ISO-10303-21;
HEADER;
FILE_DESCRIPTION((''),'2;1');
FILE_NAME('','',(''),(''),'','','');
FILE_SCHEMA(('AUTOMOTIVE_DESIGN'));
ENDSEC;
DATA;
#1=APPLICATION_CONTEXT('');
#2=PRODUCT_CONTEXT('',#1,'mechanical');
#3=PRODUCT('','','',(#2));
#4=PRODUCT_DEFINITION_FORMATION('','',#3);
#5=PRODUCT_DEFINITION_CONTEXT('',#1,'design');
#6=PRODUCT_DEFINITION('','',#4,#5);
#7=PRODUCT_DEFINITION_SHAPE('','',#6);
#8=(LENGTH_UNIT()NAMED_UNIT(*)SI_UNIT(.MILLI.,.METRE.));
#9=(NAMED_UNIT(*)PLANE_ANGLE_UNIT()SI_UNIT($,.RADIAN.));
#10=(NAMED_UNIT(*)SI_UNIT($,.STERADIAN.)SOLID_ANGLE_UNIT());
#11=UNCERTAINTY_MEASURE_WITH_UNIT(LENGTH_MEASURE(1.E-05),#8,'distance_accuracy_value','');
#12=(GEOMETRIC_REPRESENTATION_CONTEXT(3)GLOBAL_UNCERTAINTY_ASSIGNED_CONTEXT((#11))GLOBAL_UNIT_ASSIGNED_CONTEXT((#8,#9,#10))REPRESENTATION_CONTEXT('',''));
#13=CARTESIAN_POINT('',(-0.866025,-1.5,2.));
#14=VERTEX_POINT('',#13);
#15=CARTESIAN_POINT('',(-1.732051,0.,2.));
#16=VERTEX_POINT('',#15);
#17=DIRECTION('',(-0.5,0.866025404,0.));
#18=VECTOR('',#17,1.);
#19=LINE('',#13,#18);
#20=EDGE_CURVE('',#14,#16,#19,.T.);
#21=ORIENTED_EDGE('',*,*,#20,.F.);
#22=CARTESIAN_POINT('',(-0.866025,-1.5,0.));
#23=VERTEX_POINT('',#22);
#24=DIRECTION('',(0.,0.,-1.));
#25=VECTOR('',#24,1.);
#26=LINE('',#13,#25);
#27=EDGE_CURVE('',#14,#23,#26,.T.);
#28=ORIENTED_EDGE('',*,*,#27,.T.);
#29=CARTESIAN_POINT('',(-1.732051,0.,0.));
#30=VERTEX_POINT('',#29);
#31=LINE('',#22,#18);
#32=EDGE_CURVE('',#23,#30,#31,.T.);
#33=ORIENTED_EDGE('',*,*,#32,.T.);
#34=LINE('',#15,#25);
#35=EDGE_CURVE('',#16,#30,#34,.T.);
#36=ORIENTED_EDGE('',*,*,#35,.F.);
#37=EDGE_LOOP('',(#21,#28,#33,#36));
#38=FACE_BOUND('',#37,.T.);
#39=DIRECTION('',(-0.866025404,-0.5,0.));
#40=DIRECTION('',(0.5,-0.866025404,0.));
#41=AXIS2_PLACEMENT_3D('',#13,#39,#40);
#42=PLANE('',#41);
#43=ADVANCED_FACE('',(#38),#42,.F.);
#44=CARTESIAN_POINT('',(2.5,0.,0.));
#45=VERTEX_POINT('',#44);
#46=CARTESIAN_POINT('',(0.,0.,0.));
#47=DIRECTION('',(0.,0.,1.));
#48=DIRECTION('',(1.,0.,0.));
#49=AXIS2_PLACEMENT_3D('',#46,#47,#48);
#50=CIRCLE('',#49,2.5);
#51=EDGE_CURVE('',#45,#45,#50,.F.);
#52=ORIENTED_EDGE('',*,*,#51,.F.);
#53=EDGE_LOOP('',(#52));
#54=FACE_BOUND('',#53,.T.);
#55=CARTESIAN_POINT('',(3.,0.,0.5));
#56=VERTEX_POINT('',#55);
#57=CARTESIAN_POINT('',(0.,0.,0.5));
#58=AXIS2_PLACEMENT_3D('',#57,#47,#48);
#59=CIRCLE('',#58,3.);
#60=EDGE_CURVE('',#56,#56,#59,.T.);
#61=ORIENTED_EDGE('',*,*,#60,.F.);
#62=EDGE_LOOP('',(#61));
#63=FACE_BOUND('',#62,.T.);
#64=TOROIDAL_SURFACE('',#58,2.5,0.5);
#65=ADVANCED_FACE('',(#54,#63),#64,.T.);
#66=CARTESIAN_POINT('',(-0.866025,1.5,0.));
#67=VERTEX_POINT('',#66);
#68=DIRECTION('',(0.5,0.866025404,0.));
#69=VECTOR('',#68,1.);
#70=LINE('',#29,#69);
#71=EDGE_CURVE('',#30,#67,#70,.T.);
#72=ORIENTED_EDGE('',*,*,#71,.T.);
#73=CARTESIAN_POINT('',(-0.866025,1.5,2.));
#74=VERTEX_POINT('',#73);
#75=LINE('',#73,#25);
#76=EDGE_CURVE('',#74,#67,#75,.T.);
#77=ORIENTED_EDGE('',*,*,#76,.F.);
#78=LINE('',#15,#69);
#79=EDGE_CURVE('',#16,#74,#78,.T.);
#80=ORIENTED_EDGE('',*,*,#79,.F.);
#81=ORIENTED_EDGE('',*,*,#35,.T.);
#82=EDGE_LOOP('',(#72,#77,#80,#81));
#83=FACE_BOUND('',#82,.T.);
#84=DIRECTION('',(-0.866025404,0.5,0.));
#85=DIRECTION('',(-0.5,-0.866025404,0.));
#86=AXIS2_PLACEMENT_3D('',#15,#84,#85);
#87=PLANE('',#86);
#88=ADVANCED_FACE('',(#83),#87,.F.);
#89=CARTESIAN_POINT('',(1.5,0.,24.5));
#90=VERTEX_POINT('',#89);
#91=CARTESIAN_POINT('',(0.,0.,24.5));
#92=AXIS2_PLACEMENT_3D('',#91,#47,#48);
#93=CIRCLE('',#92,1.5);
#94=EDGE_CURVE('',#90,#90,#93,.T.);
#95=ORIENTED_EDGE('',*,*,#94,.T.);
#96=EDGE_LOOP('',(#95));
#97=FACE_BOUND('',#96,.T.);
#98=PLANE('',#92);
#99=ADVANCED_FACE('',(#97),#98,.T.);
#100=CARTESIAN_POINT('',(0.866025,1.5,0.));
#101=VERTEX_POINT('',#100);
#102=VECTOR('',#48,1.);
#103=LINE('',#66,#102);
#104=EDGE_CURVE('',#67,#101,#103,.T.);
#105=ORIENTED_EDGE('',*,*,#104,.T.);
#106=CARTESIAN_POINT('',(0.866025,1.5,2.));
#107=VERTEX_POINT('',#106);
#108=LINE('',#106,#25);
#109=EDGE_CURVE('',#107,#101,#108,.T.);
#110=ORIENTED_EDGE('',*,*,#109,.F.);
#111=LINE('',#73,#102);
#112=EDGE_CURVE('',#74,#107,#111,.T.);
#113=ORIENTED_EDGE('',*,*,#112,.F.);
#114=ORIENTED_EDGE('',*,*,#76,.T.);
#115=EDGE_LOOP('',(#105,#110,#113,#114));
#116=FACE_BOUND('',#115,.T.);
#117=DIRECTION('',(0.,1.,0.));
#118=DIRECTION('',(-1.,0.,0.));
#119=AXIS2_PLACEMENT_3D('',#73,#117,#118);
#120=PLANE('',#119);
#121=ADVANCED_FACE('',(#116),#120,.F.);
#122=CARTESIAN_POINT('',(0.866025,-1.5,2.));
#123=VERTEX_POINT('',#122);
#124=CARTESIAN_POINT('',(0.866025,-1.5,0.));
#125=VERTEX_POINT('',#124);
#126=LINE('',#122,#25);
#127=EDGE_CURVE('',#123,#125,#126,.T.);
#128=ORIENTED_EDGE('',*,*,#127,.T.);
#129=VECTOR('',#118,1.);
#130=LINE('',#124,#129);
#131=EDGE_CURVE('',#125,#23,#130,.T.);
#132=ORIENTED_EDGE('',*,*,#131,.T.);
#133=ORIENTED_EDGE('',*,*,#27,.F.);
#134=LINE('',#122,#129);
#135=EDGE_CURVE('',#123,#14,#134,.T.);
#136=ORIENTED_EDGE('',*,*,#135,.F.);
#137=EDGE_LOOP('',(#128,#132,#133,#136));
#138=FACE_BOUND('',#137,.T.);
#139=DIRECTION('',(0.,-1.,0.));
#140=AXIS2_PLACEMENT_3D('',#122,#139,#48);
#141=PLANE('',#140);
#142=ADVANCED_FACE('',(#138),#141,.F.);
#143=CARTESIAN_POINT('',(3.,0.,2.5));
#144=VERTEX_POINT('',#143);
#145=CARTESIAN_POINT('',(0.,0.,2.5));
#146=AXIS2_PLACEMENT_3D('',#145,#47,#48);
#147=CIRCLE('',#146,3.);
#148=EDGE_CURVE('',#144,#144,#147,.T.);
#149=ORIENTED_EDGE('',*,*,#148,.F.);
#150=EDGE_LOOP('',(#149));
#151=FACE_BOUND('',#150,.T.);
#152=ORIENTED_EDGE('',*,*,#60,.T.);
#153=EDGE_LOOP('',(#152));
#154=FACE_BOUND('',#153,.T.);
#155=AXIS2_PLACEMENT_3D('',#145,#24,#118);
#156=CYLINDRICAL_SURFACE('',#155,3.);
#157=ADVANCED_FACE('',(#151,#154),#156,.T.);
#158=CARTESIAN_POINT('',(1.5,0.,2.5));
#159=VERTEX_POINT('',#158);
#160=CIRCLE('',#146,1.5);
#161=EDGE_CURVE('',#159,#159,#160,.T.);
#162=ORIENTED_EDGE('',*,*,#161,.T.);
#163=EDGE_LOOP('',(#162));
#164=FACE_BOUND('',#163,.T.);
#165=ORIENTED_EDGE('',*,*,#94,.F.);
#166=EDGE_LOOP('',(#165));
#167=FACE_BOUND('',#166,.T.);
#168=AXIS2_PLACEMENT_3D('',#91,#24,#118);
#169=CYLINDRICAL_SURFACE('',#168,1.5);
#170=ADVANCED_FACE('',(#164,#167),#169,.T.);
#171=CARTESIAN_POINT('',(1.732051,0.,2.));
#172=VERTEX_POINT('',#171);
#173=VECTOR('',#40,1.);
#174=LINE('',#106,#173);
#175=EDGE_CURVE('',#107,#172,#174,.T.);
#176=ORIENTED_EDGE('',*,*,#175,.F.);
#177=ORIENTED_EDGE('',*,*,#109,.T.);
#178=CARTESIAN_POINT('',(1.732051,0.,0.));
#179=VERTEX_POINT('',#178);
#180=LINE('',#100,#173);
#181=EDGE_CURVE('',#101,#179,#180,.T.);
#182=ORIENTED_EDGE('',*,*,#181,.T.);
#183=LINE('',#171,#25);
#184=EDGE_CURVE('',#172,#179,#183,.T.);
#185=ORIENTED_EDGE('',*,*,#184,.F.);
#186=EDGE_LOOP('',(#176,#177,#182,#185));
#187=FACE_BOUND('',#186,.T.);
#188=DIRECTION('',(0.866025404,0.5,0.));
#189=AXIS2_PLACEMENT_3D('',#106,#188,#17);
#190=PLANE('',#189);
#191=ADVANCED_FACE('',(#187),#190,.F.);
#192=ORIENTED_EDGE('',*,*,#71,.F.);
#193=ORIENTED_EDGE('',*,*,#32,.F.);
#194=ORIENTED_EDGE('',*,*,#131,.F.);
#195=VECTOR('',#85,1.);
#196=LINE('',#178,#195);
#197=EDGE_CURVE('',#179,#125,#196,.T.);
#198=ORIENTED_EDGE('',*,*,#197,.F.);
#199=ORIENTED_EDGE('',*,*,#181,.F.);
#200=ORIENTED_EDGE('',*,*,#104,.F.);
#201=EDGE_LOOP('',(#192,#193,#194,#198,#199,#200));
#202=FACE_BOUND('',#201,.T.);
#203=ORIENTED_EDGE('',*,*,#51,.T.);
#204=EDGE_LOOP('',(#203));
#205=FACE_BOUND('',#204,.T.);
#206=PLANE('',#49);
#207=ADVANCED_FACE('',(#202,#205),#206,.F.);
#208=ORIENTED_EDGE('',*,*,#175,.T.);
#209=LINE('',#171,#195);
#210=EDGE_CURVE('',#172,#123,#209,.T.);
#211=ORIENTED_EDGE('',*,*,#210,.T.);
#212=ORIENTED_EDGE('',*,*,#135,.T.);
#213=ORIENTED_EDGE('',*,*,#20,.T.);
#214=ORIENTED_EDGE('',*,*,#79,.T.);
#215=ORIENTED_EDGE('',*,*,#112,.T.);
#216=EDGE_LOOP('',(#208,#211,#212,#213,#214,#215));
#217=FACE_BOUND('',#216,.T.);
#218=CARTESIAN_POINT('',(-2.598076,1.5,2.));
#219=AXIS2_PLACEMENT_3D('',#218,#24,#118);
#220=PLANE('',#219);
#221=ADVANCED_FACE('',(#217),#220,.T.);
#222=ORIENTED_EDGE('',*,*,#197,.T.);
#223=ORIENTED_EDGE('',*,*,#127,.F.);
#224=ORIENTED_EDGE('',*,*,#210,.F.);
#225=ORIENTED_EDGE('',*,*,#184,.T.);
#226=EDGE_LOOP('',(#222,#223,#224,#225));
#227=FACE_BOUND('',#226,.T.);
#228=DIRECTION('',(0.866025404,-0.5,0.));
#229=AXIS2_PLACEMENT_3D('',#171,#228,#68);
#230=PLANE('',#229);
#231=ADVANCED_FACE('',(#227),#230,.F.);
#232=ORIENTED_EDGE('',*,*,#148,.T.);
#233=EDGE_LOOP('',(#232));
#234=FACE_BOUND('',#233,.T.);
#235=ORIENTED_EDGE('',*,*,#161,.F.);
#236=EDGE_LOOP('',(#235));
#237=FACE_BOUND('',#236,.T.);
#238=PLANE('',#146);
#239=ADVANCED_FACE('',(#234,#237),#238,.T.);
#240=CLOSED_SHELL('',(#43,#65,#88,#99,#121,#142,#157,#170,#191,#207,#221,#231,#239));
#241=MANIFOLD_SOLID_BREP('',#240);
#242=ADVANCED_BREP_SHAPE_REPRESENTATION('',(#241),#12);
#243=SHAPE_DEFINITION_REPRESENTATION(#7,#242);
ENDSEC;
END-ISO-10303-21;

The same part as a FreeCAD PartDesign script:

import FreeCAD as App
import Part
import Sketcher

V = App.Vector
Q = App.Units.Quantity


def edges_at(feature, points):
    """Names of the edges that pass closest to the given points."""
    edges = feature.Shape.Edges
    near = lambda p: min(range(len(edges)), key=lambda i: edges[i].distToShape(Part.Vertex(*p))[0])
    return sorted({f"Edge{near(p) + 1}" for p in points})


def add_polygon(sketch, points):
    """Adds a closed chain of lines whose ends are joined by coincident constraints."""
    first, n = sketch.GeometryCount, len(points)
    for a, b in zip(points, points[1:] + points[:1]):
        sketch.addGeometry(Part.LineSegment(App.Vector(*a, 0), App.Vector(*b, 0)), False)
    for i in range(n):
        sketch.addConstraint(Sketcher.Constraint("Coincident", first + i, 2, first + (i + 1) % n, 1))

doc = App.newDocument("Part")
params = doc.addObject("Spreadsheet::Sheet", "Params")
for row, (alias, value) in enumerate([
    ("sketch1_diameter", "6 mm"),
    ("pad1_length", "2.5 mm"),
    ("sketch2_diameter", "3 mm"),
    ("pad2_length", "22 mm"),
    ("fillet_radius", "0.5 mm"),
    ("pocket1_length", "2 mm"),
], start=1):
    params.set(f"A{row}", alias)
    params.set(f"B{row}", "=" + value)
    params.setAlias(f"B{row}", alias)

body = doc.addObject("PartDesign::Body", "Body")

# Sketch on XY plane
sketch1 = body.newObject("Sketcher::SketchObject", "Sketch")
sketch1.AttachmentSupport = (doc.getObject("XY_Plane"), [""])
sketch1.MapMode = "FlatFace"
sketch1.addGeometry(Part.Circle(V(0, 0, 0), V(0, 0, 1), 3), False)
sketch1.addConstraint([
    Sketcher.Constraint("Coincident", 0, 3, -1, 1),
    Sketcher.Constraint("Diameter", 0, 6.0),
])
sketch1.setExpression("Constraints[1]", "Params.sketch1_diameter")
pad1 = body.newObject("PartDesign::Pad", "Pad")
pad1.Profile = sketch1
pad1.setExpression("Length", "Params.pad1_length")

# Sketch on XY plane
sketch2 = body.newObject("Sketcher::SketchObject", "Sketch001")
sketch2.AttachmentSupport = (doc.getObject("XY_Plane"), [""])
sketch2.MapMode = "FlatFace"
sketch2.AttachmentOffset = App.Placement(V(0, 0, 2.5), App.Rotation())
sketch2.addGeometry(Part.Circle(V(0, 0, 0), V(0, 0, 1), 1.5), False)
sketch2.addConstraint([
    Sketcher.Constraint("Coincident", 0, 3, -1, 1),
    Sketcher.Constraint("Diameter", 0, 3.0),
])
sketch2.setExpression("Constraints[1]", "Params.sketch2_diameter")
pad2 = body.newObject("PartDesign::Pad", "Pad001")
pad2.Profile = sketch2
pad2.setExpression("Length", "Params.pad2_length")
doc.recompute()

fillet = body.newObject("PartDesign::Fillet", "Fillet")
fillet.Base = (pad2, edges_at(pad2, [(-3, 0, 0)]))
fillet.setExpression("Radius", "Params.fillet_radius")

# Sketch on XY plane
sketch3 = body.newObject("Sketcher::SketchObject", "Sketch002")
sketch3.AttachmentSupport = (doc.getObject("XY_Plane"), [""])
sketch3.MapMode = "FlatFace"
add_polygon(sketch3, [(-1.7, 0), (-0.9, 1.5), (0.9, 1.5), (1.7, 0), (0.9, -1.5), (-0.9, -1.5)])  # lines 0-5
sketch3.addConstraint([
    Sketcher.Constraint("Horizontal", 1),
    Sketcher.Constraint("Horizontal", 4),
    Sketcher.Constraint("Symmetric", 0, 2, 3, 2, -1, 1),
    Sketcher.Constraint("Symmetric", 2, 2, 5, 2, -1, 1),
    Sketcher.Constraint("PointOnObject", 2, 2, -1),
    Sketcher.Constraint("Parallel", 2, 5),
    Sketcher.Constraint("Vertical", 1, 2, 3, 2),
    Sketcher.Constraint("Angle", 0, Q("60 deg")),
    Sketcher.Constraint("DistanceY", 3, 2, 1, 2, 3.0),
    Sketcher.Constraint("DistanceX", 1, 1, 1, 2, 1.732051),
])
pocket1 = body.newObject("PartDesign::Pocket", "Pocket")
pocket1.Profile = sketch3
pocket1.setExpression("Length", "Params.pocket1_length")
pocket1.Reversed = True

doc.recompute()
